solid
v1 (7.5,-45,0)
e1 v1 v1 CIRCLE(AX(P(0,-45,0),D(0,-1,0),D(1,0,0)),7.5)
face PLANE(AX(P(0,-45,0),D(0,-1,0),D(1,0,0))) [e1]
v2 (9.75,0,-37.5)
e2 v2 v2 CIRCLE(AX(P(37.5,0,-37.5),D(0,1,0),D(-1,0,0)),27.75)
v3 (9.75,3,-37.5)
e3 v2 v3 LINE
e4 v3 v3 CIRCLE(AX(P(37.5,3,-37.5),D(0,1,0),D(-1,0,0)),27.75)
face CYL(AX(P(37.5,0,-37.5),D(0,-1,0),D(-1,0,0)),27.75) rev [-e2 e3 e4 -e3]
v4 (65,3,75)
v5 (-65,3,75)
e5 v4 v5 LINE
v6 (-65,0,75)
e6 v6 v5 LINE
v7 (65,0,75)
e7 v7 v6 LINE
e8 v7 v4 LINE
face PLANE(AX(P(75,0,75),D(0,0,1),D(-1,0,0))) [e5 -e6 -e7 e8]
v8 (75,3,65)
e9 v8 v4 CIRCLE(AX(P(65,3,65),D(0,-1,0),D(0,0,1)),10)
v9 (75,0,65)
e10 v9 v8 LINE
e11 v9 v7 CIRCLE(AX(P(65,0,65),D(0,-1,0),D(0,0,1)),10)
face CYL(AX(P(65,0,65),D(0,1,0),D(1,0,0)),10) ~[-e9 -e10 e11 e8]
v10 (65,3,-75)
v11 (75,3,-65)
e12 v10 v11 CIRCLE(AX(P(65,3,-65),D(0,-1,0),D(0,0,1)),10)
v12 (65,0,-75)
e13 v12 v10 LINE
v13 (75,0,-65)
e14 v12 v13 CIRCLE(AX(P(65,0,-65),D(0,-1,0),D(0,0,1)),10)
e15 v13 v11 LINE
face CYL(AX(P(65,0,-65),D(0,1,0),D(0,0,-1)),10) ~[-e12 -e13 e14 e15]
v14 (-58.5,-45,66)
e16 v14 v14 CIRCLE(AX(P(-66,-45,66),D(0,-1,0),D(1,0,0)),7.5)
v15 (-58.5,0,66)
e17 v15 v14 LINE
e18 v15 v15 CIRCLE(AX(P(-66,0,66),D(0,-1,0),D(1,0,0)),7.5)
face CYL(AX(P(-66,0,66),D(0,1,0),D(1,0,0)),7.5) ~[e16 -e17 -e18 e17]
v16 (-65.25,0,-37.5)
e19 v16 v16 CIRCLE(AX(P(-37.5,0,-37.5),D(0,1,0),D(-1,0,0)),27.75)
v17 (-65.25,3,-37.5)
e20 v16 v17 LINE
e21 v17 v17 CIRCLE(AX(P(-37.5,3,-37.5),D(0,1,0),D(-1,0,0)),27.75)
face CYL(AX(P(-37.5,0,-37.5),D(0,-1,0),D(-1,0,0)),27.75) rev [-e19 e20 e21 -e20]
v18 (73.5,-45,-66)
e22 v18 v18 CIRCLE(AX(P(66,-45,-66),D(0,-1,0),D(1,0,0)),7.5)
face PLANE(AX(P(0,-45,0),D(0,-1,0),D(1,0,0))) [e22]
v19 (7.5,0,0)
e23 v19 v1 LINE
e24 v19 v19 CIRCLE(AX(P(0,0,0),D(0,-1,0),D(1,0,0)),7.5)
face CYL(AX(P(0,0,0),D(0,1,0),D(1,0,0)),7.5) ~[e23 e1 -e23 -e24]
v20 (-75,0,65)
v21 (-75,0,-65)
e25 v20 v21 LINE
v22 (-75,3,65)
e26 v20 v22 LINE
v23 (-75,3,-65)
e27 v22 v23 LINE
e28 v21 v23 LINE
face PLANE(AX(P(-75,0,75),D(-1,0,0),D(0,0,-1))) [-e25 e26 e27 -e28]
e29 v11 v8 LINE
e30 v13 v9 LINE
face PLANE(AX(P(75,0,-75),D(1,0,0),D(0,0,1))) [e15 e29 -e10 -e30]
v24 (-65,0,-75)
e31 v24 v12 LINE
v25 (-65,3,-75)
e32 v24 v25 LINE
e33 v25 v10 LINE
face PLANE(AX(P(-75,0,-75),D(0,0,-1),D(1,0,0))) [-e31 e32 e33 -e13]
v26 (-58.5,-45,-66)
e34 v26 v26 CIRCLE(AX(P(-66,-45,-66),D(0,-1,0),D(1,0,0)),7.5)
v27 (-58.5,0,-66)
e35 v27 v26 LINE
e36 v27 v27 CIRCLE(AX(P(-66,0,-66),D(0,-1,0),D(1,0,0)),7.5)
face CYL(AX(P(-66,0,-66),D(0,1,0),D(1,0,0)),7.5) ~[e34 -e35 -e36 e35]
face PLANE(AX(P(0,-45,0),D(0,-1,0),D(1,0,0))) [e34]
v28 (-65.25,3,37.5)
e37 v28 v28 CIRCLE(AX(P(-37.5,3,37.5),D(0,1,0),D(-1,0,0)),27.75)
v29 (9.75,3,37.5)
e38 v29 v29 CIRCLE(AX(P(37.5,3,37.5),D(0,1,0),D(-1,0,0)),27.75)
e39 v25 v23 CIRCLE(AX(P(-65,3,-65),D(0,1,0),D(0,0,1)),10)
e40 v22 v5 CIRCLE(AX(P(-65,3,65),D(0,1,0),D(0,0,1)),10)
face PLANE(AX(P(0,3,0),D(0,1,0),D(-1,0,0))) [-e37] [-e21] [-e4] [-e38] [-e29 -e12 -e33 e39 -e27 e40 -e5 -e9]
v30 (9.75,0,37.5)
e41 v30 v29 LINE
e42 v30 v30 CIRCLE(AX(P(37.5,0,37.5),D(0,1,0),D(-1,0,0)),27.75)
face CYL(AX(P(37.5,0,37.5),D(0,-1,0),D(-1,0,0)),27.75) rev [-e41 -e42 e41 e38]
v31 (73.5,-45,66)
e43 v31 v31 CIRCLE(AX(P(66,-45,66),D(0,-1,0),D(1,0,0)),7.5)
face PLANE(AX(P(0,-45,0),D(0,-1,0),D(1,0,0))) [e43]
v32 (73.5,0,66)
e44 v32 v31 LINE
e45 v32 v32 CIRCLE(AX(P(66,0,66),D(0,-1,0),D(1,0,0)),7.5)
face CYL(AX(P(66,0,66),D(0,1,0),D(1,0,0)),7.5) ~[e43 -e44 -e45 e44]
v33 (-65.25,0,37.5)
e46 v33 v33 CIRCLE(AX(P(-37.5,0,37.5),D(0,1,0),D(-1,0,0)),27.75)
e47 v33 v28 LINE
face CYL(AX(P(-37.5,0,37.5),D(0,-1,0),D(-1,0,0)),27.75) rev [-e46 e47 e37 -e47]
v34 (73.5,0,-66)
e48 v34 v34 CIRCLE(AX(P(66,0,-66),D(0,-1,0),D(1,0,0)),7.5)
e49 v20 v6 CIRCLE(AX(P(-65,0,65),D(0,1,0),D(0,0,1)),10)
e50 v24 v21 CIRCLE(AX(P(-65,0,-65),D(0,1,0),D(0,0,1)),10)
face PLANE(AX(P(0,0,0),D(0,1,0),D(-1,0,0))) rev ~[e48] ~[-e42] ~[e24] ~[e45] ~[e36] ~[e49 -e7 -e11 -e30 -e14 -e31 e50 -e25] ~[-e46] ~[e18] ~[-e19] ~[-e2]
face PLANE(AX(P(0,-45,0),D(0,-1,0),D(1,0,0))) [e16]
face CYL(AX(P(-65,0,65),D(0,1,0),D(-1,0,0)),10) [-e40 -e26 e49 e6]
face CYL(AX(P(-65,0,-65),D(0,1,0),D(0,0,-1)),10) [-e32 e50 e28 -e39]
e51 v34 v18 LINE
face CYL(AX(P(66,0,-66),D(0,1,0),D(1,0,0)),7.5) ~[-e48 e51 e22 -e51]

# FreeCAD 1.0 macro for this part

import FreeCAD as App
import Part
import Sketcher
Q = App.Units.Quantity


def edges_at(feature, points):
    """Names of the edges that pass closest to the given points."""
    edges = feature.Shape.Edges
    near = lambda p: min(range(len(edges)), key=lambda i: edges[i].distToShape(Part.Vertex(*p))[0])
    return sorted({f"Edge{near(p) + 1}" for p in points})

doc = App.newDocument("Part")
body = doc.addObject("PartDesign::Body", "Body")

# Sketch on XZ plane
sketch1 = doc.addObject("Sketcher::SketchObject", "Sketch")
body.addObject(sketch1)
sketch1.AttachmentSupport = (doc.XZ_Plane, [""])
sketch1.MapMode = "FlatFace"
sketch1.addGeometry([
    Part.LineSegment(App.Vector(75, -75, 0), App.Vector(-75, -75, 0)),  # 0
    Part.LineSegment(App.Vector(-75, -75, 0), App.Vector(-75, 75, 0)),  # 1
    Part.LineSegment(App.Vector(-75, 75, 0), App.Vector(75, 75, 0)),  # 2
    Part.LineSegment(App.Vector(75, 75, 0), App.Vector(75, -75, 0)),  # 3
    Part.Circle(App.Vector(38, -38, 0), App.Vector(0, 0, 1), 28),  # 4
    Part.Circle(App.Vector(-38, -38, 0), App.Vector(0, 0, 1), 28),  # 5
    Part.Circle(App.Vector(38, 38, 0), App.Vector(0, 0, 1), 28),  # 6
    Part.Circle(App.Vector(-38, 38, 0), App.Vector(0, 0, 1), 28),  # 7
], False)
sketch1.addConstraint([
    Sketcher.Constraint("Coincident", 0, 2, 1, 1),
    Sketcher.Constraint("Coincident", 1, 2, 2, 1),
    Sketcher.Constraint("Coincident", 2, 2, 3, 1),
    Sketcher.Constraint("Coincident", 3, 2, 0, 1),
    Sketcher.Constraint("Horizontal", 0),
    Sketcher.Constraint("Vertical", 1),
    Sketcher.Constraint("Horizontal", 2),
    Sketcher.Constraint("Vertical", 3),
    Sketcher.Constraint("Equal", 4, 5),
    Sketcher.Constraint("Equal", 5, 6),
    Sketcher.Constraint("Equal", 6, 7),
    Sketcher.Constraint("Symmetric", 5, 3, 6, 3, -1, 1),
    Sketcher.Constraint("Symmetric", 4, 3, 7, 3, -1, 1),
    Sketcher.Constraint("Symmetric", 0, 2, 2, 2, -1, 1),
    Sketcher.Constraint("Symmetric", 4, 3, 5, 3, -2),
    Sketcher.Constraint("Equal", 2, 1),
    Sketcher.Constraint("DistanceX", 0, 2, 0, 1, Q("150 mm")),
    Sketcher.Constraint("DistanceX", 5, 3, 4, 3, Q("75 mm")),
    Sketcher.Constraint("DistanceY", 4, 3, 6, 3, Q("75 mm")),
    Sketcher.Constraint("Diameter", 4, Q("55.5 mm")),
])
pad1 = doc.addObject("PartDesign::Pad", "Pad")
body.addObject(pad1)
pad1.Profile = sketch1
pad1.Length = 3
pad1.Reversed = True

# Sketch on XZ plane
sketch2 = doc.addObject("Sketcher::SketchObject", "Sketch001")
body.addObject(sketch2)
sketch2.AttachmentSupport = (doc.XZ_Plane, [""])
sketch2.MapMode = "FlatFace"
sketch2.addGeometry([
    Part.Circle(App.Vector(0, 0, 0), App.Vector(0, 0, 1), 8),  # 0
    Part.Circle(App.Vector(-66, 66, 0), App.Vector(0, 0, 1), 8),  # 1
    Part.Circle(App.Vector(66, 66, 0), App.Vector(0, 0, 1), 8),  # 2
    Part.Circle(App.Vector(-66, -66, 0), App.Vector(0, 0, 1), 8),  # 3
    Part.Circle(App.Vector(66, -66, 0), App.Vector(0, 0, 1), 8),  # 4
], False)
sketch2.addConstraint([
    Sketcher.Constraint("Coincident", 0, 3, -1, 1),
    Sketcher.Constraint("Equal", 0, 1),
    Sketcher.Constraint("Equal", 1, 2),
    Sketcher.Constraint("Equal", 2, 3),
    Sketcher.Constraint("Equal", 3, 4),
    Sketcher.Constraint("Symmetric", 2, 3, 3, 3, -1, 1),
    Sketcher.Constraint("Symmetric", 1, 3, 4, 3, -1, 1),
    Sketcher.Constraint("Symmetric", 1, 3, 2, 3, -2),
    Sketcher.Constraint("Diameter", 0, Q("15 mm")),
    Sketcher.Constraint("DistanceX", 1, 3, -1, 1, Q("66 mm")),
    Sketcher.Constraint("DistanceY", -1, 1, 1, 3, Q("66 mm")),
])
pad2 = doc.addObject("PartDesign::Pad", "Pad001")
body.addObject(pad2)
pad2.Profile = sketch2
pad2.Length = 45
doc.recompute()

fillet = doc.addObject("PartDesign::Fillet", "Fillet")
body.addObject(fillet)
fillet.Base = (pad2, edges_at(pad2, [
    (-75, 1.5, 75),
    (75, 1.5, 75),
    (75, 1.5, -75),
    (-75, 1.5, -75),
]))
fillet.Radius = 10

doc.recompute()
